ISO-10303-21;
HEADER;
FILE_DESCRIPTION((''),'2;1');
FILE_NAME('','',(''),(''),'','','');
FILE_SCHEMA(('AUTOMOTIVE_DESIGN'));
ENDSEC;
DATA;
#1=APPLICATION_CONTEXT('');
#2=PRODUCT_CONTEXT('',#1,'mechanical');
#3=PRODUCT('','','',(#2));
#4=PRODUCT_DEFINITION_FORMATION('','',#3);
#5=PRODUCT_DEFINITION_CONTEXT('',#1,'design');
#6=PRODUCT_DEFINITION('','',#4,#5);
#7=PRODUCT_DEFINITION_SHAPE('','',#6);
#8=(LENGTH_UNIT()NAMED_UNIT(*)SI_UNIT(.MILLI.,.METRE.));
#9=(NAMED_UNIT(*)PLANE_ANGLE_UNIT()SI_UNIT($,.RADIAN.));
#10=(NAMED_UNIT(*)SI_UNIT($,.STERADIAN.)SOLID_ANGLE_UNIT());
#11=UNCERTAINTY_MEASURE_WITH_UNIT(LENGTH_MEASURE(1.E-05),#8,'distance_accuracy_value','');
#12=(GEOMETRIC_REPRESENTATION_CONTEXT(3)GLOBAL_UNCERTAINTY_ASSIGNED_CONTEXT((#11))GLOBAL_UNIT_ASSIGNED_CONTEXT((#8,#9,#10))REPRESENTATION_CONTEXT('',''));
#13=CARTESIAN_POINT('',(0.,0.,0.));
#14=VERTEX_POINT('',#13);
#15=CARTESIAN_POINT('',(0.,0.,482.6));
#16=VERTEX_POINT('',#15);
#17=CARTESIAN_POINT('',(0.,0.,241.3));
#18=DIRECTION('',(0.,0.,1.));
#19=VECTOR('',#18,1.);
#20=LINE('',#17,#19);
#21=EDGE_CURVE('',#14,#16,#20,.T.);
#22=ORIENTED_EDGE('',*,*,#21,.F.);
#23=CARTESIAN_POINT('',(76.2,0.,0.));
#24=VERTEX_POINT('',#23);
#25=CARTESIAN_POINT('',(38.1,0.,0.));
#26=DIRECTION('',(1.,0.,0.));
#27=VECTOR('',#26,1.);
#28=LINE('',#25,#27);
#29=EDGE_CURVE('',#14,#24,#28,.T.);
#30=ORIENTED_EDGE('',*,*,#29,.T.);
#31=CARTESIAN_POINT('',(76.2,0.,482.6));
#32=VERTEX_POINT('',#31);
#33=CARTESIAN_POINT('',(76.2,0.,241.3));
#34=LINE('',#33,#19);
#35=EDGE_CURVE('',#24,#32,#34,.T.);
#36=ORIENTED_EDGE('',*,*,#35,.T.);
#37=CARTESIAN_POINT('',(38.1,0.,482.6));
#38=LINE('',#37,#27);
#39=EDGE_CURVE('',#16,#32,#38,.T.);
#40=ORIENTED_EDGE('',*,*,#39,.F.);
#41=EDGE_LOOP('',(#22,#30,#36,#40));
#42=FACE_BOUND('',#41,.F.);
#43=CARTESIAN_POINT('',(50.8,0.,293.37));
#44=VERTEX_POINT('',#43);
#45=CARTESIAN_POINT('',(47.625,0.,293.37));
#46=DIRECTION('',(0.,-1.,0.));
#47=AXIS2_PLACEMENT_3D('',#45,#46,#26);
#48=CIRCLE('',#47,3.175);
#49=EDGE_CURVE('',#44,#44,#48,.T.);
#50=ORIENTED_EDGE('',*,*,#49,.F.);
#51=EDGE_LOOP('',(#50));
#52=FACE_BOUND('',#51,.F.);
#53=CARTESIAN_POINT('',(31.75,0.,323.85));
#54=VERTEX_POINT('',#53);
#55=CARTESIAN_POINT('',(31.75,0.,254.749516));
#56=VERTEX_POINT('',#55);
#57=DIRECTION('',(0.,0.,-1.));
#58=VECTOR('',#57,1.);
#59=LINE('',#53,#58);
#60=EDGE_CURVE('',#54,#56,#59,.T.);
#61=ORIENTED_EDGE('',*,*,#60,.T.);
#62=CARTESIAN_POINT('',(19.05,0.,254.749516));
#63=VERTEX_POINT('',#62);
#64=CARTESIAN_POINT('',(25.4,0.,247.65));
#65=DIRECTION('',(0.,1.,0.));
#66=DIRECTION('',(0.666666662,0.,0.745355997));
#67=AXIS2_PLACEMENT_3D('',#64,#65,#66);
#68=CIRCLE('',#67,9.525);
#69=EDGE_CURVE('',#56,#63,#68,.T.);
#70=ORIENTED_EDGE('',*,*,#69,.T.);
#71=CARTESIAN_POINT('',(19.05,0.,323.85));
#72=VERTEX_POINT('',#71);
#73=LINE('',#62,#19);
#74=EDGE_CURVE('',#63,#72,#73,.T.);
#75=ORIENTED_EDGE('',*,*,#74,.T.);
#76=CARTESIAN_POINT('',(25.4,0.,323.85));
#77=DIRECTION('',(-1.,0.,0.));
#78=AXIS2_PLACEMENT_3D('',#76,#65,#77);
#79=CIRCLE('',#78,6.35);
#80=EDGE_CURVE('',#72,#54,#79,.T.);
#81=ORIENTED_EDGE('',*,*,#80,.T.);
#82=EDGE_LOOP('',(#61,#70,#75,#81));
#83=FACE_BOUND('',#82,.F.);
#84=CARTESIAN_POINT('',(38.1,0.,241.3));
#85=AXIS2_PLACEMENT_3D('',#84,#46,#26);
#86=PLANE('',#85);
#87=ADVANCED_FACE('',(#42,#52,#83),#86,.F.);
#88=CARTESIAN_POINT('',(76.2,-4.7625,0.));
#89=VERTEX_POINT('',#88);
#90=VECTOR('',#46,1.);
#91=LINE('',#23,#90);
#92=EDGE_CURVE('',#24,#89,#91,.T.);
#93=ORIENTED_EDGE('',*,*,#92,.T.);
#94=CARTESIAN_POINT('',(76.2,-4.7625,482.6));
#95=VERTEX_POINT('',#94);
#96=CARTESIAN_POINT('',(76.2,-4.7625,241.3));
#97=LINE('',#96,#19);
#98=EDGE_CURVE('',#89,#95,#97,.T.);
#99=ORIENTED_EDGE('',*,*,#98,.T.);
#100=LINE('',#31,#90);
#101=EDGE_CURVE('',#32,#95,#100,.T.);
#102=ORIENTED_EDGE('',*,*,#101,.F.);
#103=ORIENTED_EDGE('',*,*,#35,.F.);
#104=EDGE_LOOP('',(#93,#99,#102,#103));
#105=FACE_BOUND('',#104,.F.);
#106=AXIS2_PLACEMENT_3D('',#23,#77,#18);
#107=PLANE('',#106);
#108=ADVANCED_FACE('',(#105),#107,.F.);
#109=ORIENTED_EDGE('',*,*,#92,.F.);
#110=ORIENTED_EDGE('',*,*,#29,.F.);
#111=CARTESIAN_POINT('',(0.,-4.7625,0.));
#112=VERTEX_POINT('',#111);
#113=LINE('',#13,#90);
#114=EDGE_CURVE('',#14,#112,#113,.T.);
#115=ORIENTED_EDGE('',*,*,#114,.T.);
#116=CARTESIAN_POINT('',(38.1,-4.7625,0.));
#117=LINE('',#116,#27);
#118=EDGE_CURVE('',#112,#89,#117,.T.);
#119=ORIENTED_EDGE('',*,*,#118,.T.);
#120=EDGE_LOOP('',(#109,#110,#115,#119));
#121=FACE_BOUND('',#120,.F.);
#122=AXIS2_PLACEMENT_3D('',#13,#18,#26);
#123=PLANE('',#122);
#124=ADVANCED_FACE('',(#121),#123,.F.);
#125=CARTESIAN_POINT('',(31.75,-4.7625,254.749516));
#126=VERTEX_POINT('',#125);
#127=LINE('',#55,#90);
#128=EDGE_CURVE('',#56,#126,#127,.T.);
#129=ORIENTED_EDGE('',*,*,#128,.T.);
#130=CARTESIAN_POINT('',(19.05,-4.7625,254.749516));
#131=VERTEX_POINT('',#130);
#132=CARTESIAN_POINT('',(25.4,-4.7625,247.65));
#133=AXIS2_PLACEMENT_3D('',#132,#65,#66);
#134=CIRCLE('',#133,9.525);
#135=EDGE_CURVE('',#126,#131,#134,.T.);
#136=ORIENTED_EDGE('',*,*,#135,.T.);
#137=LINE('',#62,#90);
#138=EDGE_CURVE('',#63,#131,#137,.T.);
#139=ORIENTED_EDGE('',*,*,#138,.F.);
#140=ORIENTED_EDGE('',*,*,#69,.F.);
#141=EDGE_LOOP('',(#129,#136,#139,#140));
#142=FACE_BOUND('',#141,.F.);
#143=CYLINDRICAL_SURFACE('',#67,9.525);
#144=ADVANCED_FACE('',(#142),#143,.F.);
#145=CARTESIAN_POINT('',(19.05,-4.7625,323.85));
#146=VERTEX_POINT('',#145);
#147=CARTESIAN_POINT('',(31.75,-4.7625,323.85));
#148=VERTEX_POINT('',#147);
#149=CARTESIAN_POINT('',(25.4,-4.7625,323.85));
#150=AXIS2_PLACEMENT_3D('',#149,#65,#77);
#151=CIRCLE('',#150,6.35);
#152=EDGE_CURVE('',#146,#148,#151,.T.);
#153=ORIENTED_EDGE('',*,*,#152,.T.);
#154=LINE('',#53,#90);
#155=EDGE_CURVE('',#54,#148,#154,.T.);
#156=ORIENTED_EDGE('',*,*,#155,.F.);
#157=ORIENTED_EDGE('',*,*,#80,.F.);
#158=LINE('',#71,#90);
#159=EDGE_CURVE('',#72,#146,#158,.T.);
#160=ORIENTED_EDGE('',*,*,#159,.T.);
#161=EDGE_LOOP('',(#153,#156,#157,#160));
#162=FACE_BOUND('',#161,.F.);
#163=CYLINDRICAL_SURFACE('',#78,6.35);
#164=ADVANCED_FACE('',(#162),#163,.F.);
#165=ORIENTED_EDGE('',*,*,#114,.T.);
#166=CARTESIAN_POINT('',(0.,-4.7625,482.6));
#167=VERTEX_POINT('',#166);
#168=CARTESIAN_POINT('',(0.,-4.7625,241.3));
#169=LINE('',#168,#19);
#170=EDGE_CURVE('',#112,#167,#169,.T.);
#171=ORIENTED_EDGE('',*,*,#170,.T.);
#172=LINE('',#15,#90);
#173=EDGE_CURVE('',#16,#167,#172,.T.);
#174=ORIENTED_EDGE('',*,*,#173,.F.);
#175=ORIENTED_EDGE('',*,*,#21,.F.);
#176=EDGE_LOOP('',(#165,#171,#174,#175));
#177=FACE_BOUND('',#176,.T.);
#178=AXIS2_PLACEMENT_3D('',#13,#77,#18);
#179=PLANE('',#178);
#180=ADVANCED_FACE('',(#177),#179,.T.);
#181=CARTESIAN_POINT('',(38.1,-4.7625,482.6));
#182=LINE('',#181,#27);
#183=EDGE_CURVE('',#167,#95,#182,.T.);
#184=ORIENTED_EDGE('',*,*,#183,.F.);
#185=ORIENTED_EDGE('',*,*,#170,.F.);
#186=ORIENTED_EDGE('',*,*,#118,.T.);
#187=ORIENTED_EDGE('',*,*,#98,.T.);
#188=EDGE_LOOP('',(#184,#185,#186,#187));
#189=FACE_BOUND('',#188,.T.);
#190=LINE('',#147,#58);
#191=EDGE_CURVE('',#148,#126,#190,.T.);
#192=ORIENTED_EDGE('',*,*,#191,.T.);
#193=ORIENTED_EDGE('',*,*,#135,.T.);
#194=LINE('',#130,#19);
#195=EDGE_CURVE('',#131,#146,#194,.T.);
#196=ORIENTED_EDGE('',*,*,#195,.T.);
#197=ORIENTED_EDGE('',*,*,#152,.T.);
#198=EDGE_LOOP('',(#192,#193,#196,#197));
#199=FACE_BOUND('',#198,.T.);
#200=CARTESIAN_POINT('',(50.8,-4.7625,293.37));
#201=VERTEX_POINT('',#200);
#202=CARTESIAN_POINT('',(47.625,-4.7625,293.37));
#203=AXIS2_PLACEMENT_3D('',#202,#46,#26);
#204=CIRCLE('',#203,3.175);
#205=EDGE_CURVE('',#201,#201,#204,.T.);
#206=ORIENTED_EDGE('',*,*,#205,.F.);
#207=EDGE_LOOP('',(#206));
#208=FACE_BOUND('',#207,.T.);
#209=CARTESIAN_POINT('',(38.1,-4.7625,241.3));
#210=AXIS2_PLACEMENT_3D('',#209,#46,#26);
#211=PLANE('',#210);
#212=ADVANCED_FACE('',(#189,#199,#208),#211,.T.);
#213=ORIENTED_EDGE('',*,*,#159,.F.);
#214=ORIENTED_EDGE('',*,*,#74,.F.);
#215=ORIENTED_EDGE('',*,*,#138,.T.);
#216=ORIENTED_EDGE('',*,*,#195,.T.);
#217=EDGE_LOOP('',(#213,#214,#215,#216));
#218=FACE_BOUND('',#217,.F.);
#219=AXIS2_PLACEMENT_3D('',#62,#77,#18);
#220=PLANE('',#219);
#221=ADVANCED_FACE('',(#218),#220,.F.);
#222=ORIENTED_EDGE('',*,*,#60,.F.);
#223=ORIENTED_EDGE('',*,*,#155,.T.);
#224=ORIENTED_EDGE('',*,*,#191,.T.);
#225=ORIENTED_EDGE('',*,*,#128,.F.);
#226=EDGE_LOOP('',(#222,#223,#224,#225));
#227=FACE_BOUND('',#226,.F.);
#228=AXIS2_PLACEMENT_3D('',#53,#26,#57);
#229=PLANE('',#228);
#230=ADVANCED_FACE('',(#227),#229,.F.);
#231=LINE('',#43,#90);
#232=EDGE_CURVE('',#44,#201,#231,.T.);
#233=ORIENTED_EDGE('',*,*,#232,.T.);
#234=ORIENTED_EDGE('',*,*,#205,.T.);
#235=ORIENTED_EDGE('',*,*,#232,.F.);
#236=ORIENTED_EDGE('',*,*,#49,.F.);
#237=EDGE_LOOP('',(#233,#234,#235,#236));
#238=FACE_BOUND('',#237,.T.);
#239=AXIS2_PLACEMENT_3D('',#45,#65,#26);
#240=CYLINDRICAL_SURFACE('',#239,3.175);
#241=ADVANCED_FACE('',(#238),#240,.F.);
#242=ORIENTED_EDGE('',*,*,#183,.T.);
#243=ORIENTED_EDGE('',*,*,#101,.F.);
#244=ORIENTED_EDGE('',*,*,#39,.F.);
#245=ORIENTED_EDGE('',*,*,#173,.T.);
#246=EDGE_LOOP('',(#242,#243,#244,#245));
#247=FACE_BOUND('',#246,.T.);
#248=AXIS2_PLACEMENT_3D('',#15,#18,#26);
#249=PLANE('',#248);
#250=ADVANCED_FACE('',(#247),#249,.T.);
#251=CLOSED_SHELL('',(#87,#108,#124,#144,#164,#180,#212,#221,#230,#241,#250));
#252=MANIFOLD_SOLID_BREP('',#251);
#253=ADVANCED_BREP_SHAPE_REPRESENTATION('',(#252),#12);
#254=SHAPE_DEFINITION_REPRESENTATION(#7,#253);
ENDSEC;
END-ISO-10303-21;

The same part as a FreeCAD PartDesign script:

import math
import FreeCAD as App
import Part
import Sketcher
from FreeCAD import Vector
Q = App.Units.Quantity

doc = App.newDocument("Part")
body = doc.addObject("PartDesign::Body", "Body")

# Sketch on XZ plane
sketch1 = body.newObject("Sketcher::SketchObject", "Sketch")
sketch1.AttachmentSupport = (doc.getObject("XZ_Plane"), [""])
sketch1.MapMode = "FlatFace"
sketch1.addGeometry([
    Part.LineSegment(Vector(0, 482.6, 0), Vector(0, 0, 0)),  # 0
    Part.LineSegment(Vector(0, 0, 0), Vector(76.2, 0, 0)),  # 1
    Part.LineSegment(Vector(76.2, 0, 0), Vector(76.2, 482.6, 0)),  # 2
    Part.LineSegment(Vector(76.2, 482.6, 0), Vector(0, 482.6, 0)),  # 3
    Part.LineSegment(Vector(31.8, 323.9, 0), Vector(31.8, 254.7, 0)),  # 4
    Part.ArcOfCircle(Part.Circle(Vector(25.4, 247.7, 0), Vector(0, 0, 1), 9.5), math.radians(132), math.radians(408)),  # 5
    Part.LineSegment(Vector(19.1, 254.7, 0), Vector(19.1, 323.9, 0)),  # 6
    Part.ArcOfCircle(Part.Circle(Vector(25.4, 323.9, 0), Vector(0, 0, 1), 6.3), math.radians(0), math.radians(180)),  # 7
    Part.Circle(Vector(47.6, 293.4, 0), Vector(0, 0, 1), 3.2),  # 8
], False)
sketch1.addConstraint([
    Sketcher.Constraint("Coincident", 0, 2, 1, 1),
    Sketcher.Constraint("Coincident", 1, 2, 2, 1),
    Sketcher.Constraint("Coincident", 2, 2, 3, 1),
    Sketcher.Constraint("Coincident", 3, 2, 0, 1),
    Sketcher.Constraint("Coincident", 4, 2, 5, 2),
    Sketcher.Constraint("Coincident", 5, 1, 6, 1),
    Sketcher.Constraint("Tangent", 6, 2, 7, 2),
    Sketcher.Constraint("Tangent", 7, 1, 4, 1),
    Sketcher.Constraint("Vertical", 0),
    Sketcher.Constraint("Horizontal", 1),
    Sketcher.Constraint("Vertical", 2),
    Sketcher.Constraint("Horizontal", 3),
    Sketcher.Constraint("Vertical", 4),
    Sketcher.Constraint("Vertical", 6),
    Sketcher.Constraint("Coincident", 0, 2, -1, 1),
    Sketcher.Constraint("Horizontal", 4, 2, 5, 1),
    Sketcher.Constraint("Diameter", 8, Q("0.25 in")),
    Sketcher.Constraint("DistanceX", 1, 1, 1, 2, Q("3 in")),
    Sketcher.Constraint("DistanceY", 0, 2, 0, 1, Q("19 in")),
    Sketcher.Constraint("Radius", 7, Q("0.25 in")),
    Sketcher.Constraint("DistanceX", -1, 1, 5, 3, Q("1 in")),
    Sketcher.Constraint("Radius", 5, Q("0.375 in")),
    Sketcher.Constraint("DistanceY", 5, 3, 7, 3, Q("3 in")),
    Sketcher.Constraint("DistanceY", 8, 3, 7, 3, Q("1.2 in")),
    Sketcher.Constraint("DistanceY", -1, 1, 5, 3, Q("9.75 in")),
    Sketcher.Constraint("DistanceX", -1, 1, 8, 3, Q("1.875 in")),
])
pad1 = body.newObject("PartDesign::Pad", "Pad")
pad1.Profile = sketch1
pad1.Length = Q("0.1875 in")

doc.recompute()
